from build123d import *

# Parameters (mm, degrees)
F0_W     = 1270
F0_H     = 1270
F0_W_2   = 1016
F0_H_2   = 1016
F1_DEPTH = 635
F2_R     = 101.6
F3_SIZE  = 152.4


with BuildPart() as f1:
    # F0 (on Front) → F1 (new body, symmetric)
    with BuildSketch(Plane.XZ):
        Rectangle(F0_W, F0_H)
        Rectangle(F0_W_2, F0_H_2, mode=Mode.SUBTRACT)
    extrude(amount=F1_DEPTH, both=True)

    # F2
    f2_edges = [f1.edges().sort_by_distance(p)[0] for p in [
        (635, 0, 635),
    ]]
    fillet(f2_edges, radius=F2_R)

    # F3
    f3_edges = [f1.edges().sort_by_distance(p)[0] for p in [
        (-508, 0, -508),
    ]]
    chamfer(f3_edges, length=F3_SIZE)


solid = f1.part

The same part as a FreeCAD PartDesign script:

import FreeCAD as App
import Part
import Sketcher
from FreeCAD import Vector
Q = App.Units.Quantity


def edges_at(feature, points):
    """Names of the edges that pass closest to the given points."""
    edges = feature.Shape.Edges
    near = lambda p: min(range(len(edges)), key=lambda i: edges[i].distToShape(Part.Vertex(*p))[0])
    return sorted({f"Edge{near(p) + 1}" for p in points})


def add_polygon(sketch, points):
    """Adds a closed chain of lines whose ends are joined by coincident constraints."""
    first, n = sketch.GeometryCount, len(points)
    for a, b in zip(points, points[1:] + points[:1]):
        sketch.addGeometry(Part.LineSegment(App.Vector(*a, 0), App.Vector(*b, 0)), False)
    for i in range(n):
        sketch.addConstraint(Sketcher.Constraint("Coincident", first + i, 2, first + (i + 1) % n, 1))

doc = App.newDocument("Part")
body = doc.addObject("PartDesign::Body", "Body")

# Sketch on XZ plane
sketch1 = body.newObject("Sketcher::SketchObject", "Sketch")
sketch1.AttachmentSupport = (doc.getObject("XZ_Plane"), [""])
sketch1.MapMode = "FlatFace"
add_polygon(sketch1, [(-635, 635), (-635, -635), (635, -635), (635, 635)])  # lines 0-3
add_polygon(sketch1, [(508, -508), (-508, -508), (-508, 508), (508, 508)])  # lines 4-7
sketch1.addConstraint([
    Sketcher.Constraint("Vertical", 0),
    Sketcher.Constraint("Horizontal", 1),
    Sketcher.Constraint("Vertical", 2),
    Sketcher.Constraint("Horizontal", 3),
    Sketcher.Constraint("Horizontal", 4),
    Sketcher.Constraint("Vertical", 5),
    Sketcher.Constraint("Horizontal", 6),
    Sketcher.Constraint("Vertical", 7),
    Sketcher.Constraint("Symmetric", 0, 2, 2, 2, -1, 1),
    Sketcher.Constraint("Symmetric", 4, 2, 6, 2, -1, 1),
    Sketcher.Constraint("Equal", 3, 0),
    Sketcher.Constraint("Equal", 6, 5),
    Sketcher.Constraint("DistanceX", 1, 1, 1, 2, Q("50 in")),
    Sketcher.Constraint("DistanceX", 4, 2, 4, 1, Q("40 in")),
])
pad1 = body.newObject("PartDesign::Pad", "Pad")
pad1.Profile = sketch1
pad1.Length = Q("50 in")
pad1.Midplane = True
doc.recompute()

fillet = body.newObject("PartDesign::Fillet", "Fillet")
fillet.Base = (pad1, edges_at(pad1, [(635, 0, 635)]))
fillet.Radius = Q("4 in")
doc.recompute()

chamfer = body.newObject("PartDesign::Chamfer", "Chamfer")
chamfer.Base = (fillet, edges_at(fillet, [(-508, 0, -508)]))
chamfer.Size = Q("6 in")

doc.recompute()
